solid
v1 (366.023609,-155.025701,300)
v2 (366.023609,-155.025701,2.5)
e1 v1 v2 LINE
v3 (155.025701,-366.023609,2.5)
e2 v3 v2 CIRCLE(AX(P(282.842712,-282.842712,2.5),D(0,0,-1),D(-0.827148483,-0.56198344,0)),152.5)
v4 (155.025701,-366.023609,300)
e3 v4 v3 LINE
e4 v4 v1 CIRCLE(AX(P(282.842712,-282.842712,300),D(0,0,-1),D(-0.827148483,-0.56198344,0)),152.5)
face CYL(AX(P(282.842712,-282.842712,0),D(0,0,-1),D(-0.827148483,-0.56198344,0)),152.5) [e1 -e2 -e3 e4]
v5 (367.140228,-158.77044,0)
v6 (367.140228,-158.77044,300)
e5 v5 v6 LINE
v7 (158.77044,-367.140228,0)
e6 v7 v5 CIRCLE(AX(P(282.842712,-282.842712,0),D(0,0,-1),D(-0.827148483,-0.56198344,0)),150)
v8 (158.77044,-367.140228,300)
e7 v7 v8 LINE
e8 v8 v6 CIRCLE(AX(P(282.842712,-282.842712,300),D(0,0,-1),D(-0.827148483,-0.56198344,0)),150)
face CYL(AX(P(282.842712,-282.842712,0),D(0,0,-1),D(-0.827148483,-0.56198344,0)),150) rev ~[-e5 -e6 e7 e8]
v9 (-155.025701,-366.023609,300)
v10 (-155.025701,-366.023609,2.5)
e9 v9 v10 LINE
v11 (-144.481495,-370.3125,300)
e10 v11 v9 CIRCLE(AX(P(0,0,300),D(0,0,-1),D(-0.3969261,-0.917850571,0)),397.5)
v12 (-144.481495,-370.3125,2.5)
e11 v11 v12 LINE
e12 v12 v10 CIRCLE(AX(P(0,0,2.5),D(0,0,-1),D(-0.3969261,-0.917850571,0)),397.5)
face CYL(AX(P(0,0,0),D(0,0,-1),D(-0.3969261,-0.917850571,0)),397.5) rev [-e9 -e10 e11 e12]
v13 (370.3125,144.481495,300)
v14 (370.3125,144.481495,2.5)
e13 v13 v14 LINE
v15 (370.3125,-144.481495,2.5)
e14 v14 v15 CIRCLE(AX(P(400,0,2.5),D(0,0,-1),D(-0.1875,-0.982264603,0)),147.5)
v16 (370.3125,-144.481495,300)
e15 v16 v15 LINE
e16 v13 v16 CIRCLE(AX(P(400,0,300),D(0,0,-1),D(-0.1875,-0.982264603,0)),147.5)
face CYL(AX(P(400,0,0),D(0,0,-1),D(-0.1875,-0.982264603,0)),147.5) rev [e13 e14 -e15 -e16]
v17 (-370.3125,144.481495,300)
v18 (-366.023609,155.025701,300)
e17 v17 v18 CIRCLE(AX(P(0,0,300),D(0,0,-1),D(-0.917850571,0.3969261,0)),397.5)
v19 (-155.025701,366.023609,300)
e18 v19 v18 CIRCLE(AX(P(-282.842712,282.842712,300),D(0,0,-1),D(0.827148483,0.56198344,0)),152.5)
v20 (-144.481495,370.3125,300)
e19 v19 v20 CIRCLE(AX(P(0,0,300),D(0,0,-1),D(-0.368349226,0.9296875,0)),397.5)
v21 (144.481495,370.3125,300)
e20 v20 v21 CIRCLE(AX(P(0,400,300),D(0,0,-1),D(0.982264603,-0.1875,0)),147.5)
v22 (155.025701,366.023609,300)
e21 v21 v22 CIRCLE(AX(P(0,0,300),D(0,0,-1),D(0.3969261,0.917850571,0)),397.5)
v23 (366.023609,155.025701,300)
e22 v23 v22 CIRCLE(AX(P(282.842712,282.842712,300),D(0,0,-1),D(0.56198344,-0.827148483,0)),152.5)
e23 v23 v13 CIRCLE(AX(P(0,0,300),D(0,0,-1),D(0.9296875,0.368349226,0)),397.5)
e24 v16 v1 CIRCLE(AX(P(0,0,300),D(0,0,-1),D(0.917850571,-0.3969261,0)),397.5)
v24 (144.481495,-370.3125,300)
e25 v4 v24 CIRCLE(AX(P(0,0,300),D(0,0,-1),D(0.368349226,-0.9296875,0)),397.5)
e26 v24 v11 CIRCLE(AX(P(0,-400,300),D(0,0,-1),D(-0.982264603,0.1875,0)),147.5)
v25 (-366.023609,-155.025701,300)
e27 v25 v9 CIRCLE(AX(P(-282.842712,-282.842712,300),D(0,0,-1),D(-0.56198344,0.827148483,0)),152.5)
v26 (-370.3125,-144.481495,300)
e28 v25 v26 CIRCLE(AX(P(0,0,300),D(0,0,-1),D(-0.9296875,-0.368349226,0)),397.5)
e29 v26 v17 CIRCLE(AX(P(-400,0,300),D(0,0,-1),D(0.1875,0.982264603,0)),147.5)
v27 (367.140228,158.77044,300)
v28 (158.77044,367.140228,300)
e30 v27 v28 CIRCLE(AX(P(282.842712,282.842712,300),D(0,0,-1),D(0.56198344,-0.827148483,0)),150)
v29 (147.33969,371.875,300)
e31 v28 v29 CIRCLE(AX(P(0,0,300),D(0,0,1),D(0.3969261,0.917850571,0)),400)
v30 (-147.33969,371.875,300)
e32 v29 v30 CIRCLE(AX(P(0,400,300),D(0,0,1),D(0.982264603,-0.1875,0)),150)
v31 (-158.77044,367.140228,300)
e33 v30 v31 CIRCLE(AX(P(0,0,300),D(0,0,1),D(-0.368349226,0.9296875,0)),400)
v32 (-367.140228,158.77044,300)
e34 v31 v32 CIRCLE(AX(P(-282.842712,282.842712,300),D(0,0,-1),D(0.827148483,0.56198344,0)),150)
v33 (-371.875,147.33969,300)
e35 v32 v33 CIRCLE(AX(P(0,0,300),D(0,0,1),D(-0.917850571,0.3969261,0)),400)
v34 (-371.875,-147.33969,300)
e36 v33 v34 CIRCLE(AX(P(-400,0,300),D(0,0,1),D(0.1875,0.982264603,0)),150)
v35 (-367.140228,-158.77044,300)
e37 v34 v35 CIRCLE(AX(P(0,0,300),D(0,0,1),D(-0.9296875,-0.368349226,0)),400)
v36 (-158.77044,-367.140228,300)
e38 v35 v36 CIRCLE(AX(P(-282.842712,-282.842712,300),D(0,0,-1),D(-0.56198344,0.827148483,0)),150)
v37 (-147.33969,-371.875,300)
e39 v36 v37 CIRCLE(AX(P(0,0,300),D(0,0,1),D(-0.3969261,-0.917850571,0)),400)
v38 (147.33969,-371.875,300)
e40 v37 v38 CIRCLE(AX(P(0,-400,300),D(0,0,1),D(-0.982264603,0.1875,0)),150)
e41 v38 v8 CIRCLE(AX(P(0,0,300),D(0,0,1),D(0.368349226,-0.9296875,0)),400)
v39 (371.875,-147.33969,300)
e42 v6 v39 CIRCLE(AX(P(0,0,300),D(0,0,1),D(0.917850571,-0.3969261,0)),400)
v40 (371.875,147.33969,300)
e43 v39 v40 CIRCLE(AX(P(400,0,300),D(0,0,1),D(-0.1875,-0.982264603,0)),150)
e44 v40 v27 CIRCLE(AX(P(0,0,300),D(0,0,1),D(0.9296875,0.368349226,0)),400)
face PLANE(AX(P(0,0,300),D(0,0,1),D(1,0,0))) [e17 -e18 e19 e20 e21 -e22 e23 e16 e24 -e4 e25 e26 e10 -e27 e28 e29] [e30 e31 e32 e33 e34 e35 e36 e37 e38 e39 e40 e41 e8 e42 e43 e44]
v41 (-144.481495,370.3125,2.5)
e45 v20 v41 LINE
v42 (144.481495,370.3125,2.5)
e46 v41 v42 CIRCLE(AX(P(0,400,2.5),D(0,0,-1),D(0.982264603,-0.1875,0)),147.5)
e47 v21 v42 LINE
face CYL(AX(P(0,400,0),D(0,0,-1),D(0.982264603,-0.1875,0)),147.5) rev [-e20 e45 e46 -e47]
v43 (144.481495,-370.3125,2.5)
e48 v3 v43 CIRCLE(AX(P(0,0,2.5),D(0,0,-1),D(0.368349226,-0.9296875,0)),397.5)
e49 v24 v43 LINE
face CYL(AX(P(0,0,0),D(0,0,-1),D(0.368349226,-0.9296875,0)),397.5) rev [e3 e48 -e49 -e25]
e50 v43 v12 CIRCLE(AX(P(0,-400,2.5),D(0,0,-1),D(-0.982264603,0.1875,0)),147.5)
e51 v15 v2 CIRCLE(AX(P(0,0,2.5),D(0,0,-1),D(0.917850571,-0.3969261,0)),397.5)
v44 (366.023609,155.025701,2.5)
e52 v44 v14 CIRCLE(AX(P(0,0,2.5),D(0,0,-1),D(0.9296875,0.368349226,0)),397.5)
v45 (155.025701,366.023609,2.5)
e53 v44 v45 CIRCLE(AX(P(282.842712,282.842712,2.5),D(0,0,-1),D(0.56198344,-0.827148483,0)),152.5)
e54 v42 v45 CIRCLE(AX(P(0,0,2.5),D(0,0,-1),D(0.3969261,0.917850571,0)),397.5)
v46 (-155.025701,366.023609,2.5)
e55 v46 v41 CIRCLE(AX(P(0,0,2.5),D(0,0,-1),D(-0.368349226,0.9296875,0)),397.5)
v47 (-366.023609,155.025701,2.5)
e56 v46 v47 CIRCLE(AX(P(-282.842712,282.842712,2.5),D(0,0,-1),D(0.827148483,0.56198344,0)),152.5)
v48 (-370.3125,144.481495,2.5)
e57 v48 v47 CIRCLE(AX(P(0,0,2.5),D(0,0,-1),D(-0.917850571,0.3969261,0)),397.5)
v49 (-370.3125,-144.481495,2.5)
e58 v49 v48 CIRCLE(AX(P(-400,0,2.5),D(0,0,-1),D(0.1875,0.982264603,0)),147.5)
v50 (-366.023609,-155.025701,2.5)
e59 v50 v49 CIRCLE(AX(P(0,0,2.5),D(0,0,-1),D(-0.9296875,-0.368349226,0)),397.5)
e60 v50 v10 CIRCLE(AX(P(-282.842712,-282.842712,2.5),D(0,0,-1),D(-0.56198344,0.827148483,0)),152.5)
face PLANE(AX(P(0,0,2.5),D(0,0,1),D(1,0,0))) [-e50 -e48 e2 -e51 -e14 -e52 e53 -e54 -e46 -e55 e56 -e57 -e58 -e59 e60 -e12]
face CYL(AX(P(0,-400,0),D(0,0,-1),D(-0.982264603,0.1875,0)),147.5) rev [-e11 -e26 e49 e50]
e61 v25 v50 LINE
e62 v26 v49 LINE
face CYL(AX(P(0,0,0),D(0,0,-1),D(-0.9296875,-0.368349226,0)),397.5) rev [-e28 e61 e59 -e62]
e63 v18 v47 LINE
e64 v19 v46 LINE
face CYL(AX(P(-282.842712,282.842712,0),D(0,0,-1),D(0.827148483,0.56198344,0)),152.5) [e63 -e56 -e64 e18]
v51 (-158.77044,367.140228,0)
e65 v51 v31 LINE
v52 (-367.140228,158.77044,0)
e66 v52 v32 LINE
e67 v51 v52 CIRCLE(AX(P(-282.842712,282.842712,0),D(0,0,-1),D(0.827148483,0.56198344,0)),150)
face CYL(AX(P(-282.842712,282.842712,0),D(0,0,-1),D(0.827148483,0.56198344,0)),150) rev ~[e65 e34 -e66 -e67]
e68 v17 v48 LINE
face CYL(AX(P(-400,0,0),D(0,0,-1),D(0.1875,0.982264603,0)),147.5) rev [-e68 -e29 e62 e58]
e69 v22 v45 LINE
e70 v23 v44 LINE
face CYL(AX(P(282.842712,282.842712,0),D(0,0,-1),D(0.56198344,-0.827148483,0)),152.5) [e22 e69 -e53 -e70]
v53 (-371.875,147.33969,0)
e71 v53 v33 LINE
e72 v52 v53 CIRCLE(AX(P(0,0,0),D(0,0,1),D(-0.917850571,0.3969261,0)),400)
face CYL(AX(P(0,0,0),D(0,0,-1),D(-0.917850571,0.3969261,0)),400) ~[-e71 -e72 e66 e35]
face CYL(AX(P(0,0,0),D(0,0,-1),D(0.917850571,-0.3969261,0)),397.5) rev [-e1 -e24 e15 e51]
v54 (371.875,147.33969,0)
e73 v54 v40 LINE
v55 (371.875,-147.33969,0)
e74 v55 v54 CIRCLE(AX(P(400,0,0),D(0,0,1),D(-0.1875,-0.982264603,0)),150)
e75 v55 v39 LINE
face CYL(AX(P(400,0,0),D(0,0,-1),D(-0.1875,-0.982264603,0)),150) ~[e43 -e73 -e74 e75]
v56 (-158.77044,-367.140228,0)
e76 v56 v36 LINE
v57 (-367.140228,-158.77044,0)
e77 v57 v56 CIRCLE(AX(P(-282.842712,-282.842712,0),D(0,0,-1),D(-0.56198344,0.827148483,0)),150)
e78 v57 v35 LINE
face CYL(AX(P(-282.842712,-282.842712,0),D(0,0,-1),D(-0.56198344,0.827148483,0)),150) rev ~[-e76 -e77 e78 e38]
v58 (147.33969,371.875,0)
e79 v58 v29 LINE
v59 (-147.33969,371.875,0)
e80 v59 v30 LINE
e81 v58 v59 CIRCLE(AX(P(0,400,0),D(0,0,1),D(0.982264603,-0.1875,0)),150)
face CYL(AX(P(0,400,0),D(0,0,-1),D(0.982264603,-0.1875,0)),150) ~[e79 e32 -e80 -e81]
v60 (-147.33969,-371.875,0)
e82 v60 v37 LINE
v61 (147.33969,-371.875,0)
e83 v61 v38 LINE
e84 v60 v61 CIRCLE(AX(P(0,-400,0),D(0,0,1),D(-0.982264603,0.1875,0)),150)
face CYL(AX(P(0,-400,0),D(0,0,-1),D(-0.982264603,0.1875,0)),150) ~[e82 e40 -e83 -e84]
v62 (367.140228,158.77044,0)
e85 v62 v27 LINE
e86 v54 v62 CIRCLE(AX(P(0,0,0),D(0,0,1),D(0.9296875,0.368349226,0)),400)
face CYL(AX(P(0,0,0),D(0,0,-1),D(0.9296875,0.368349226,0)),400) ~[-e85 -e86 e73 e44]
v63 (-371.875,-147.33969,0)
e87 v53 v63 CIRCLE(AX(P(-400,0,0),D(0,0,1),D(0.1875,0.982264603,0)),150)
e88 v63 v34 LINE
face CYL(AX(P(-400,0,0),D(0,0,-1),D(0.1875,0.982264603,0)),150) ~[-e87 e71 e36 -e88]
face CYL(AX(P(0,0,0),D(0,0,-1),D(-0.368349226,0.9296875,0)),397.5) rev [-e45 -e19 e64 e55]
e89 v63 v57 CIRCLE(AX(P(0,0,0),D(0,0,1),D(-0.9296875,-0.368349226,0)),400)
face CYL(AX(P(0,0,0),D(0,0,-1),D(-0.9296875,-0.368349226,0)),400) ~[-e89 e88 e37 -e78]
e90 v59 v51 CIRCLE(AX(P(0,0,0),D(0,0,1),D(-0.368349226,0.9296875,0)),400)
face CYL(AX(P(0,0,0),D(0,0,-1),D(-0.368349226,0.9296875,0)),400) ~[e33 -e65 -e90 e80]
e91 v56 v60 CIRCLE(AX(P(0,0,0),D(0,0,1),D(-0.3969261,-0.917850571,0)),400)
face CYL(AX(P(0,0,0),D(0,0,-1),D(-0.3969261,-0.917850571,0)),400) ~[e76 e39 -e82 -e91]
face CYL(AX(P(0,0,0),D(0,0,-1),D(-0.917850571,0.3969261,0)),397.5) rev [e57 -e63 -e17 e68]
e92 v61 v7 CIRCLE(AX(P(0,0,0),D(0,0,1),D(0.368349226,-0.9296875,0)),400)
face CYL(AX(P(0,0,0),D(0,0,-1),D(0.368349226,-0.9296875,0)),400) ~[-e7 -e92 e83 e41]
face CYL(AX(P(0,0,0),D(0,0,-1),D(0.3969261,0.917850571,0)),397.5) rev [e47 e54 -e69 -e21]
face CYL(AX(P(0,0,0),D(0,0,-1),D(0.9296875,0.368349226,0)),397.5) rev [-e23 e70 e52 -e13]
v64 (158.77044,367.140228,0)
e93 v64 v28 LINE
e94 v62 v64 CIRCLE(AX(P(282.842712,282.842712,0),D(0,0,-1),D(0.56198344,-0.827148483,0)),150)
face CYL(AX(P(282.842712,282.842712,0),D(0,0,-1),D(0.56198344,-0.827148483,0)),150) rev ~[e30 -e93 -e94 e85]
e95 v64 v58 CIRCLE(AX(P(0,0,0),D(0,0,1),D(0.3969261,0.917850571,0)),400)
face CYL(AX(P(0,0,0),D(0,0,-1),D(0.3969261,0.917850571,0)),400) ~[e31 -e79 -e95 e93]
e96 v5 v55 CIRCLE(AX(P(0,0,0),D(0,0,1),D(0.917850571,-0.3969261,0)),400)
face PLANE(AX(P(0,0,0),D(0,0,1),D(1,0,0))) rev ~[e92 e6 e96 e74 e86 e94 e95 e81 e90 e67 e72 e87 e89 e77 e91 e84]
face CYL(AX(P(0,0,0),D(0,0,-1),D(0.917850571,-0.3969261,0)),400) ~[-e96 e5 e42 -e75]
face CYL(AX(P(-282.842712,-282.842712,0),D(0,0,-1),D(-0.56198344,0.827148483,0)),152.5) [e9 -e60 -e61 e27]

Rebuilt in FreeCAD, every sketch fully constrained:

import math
import FreeCAD as App
import Part
import Sketcher


def faces_at(feature, points):
    """Names of the faces that lie closest to the given points."""
    faces = feature.Shape.Faces
    near = lambda p: min(range(len(faces)), key=lambda i: faces[i].distToShape(Part.Vertex(*p))[0])
    return sorted({f"Face{near(p) + 1}" for p in points})

doc = App.newDocument("Part")
params = doc.addObject("Spreadsheet::Sheet", "Params")
for row, (alias, value) in enumerate([
    ("sketch1_radius", "150 mm"),
    ("sketch1_radius2", "400 mm"),
    ("pad1_length", "300 mm"),
    ("thickness_wall", "2.5 mm"),
], start=1):
    params.set(f"A{row}", alias)
    params.set(f"B{row}", "=" + value)
    params.setAlias(f"B{row}", alias)

body = doc.addObject("PartDesign::Body", "Body")

# Sketch on XY plane
sketch1 = body.newObject("Sketcher::SketchObject", "Sketch")
sketch1.AttachmentSupport = (doc.getObject("XY_Plane"), [""])
sketch1.MapMode = "FlatFace"
sketch1.addGeometry([
    Part.ArcOfCircle(Part.Circle(App.Vector(-283, 283, 0), App.Vector(0, 0, 1), 150), math.radians(-124), math.radians(34)),  # 0
    Part.ArcOfCircle(Part.Circle(App.Vector(0, 0, 0), App.Vector(0, 0, 1), 400), math.radians(156.61), math.radians(158.39)),  # 1
    Part.ArcOfCircle(Part.Circle(App.Vector(-400, 0, 0), App.Vector(0, 0, 1), 150), math.radians(79), math.radians(281)),  # 2
    Part.ArcOfCircle(Part.Circle(App.Vector(0, 0, 0), App.Vector(0, 0, 1), 400), math.radians(-158.39), math.radians(-156.61)),  # 3
    Part.ArcOfCircle(Part.Circle(App.Vector(-283, -283, 0), App.Vector(0, 0, 1), 150), math.radians(-34), math.radians(124)),  # 4
    Part.ArcOfCircle(Part.Circle(App.Vector(0, 0, 0), App.Vector(0, 0, 1), 400), math.radians(-113.39), math.radians(-111.61)),  # 5
    Part.ArcOfCircle(Part.Circle(App.Vector(0, -400, 0), App.Vector(0, 0, 1), 150), math.radians(169), math.radians(371)),  # 6
    Part.ArcOfCircle(Part.Circle(App.Vector(0, 0, 0), App.Vector(0, 0, 1), 400), math.radians(-68.39), math.radians(-66.61)),  # 7
    Part.ArcOfCircle(Part.Circle(App.Vector(283, -283, 0), App.Vector(0, 0, 1), 150), math.radians(56), math.radians(214)),  # 8
    Part.ArcOfCircle(Part.Circle(App.Vector(0, 0, 0), App.Vector(0, 0, 1), 400), math.radians(-23.39), math.radians(-21.61)),  # 9
    Part.ArcOfCircle(Part.Circle(App.Vector(400, 0, 0), App.Vector(0, 0, 1), 150), math.radians(-101), math.radians(101)),  # 10
    Part.ArcOfCircle(Part.Circle(App.Vector(0, 0, 0), App.Vector(0, 0, 1), 400), math.radians(21.61), math.radians(23.39)),  # 11
    Part.ArcOfCircle(Part.Circle(App.Vector(283, 283, 0), App.Vector(0, 0, 1), 150), math.radians(146), math.radians(304)),  # 12
    Part.ArcOfCircle(Part.Circle(App.Vector(0, 0, 0), App.Vector(0, 0, 1), 400), math.radians(66.61), math.radians(68.39)),  # 13
    Part.ArcOfCircle(Part.Circle(App.Vector(0, 400, 0), App.Vector(0, 0, 1), 150), math.radians(-11), math.radians(191)),  # 14
    Part.ArcOfCircle(Part.Circle(App.Vector(0, 0, 0), App.Vector(0, 0, 1), 400), math.radians(111.61), math.radians(113.39)),  # 15
], False)
sketch1.addConstraint([
    Sketcher.Constraint("Coincident", 0, 1, 1, 1),
    Sketcher.Constraint("Coincident", 1, 2, 2, 1),
    Sketcher.Constraint("Coincident", 2, 2, 3, 1),
    Sketcher.Constraint("Coincident", 3, 2, 4, 2),
    Sketcher.Constraint("Coincident", 4, 1, 5, 1),
    Sketcher.Constraint("Coincident", 5, 2, 6, 1),
    Sketcher.Constraint("Coincident", 6, 2, 7, 1),
    Sketcher.Constraint("Coincident", 7, 2, 8, 2),
    Sketcher.Constraint("Coincident", 8, 1, 9, 1),
    Sketcher.Constraint("Coincident", 9, 2, 10, 1),
    Sketcher.Constraint("Coincident", 10, 2, 11, 1),
    Sketcher.Constraint("Coincident", 11, 2, 12, 2),
    Sketcher.Constraint("Coincident", 12, 1, 13, 1),
    Sketcher.Constraint("Coincident", 13, 2, 14, 1),
    Sketcher.Constraint("Coincident", 14, 2, 15, 1),
    Sketcher.Constraint("Coincident", 15, 2, 0, 2),
    Sketcher.Constraint("Coincident", 1, 3, -1, 1),
    Sketcher.Constraint("Coincident", 3, 3, -1, 1),
    Sketcher.Constraint("Coincident", 5, 3, -1, 1),
    Sketcher.Constraint("Coincident", 7, 3, -1, 1),
    Sketcher.Constraint("Coincident", 9, 3, -1, 1),
    Sketcher.Constraint("Coincident", 11, 3, -1, 1),
    Sketcher.Constraint("Coincident", 13, 3, -1, 1),
    Sketcher.Constraint("Coincident", 15, 3, -1, 1),
    Sketcher.Constraint("Equal", 0, 2),
    Sketcher.Constraint("Equal", 1, 3),
    Sketcher.Constraint("Equal", 2, 4),
    Sketcher.Constraint("Equal", 3, 5),
    Sketcher.Constraint("Equal", 4, 6),
    Sketcher.Constraint("Equal", 5, 7),
    Sketcher.Constraint("Equal", 6, 8),
    Sketcher.Constraint("Equal", 7, 9),
    Sketcher.Constraint("Equal", 8, 10),
    Sketcher.Constraint("Equal", 9, 11),
    Sketcher.Constraint("Equal", 10, 12),
    Sketcher.Constraint("Equal", 11, 13),
    Sketcher.Constraint("Equal", 12, 14),
    Sketcher.Constraint("Equal", 13, 15),
    Sketcher.Constraint("Symmetric", 0, 3, 8, 3, -1, 1),
    Sketcher.Constraint("Symmetric", 2, 3, 10, 3, -1, 1),
    Sketcher.Constraint("Symmetric", 4, 3, 12, 3, -1, 1),
    Sketcher.Constraint("Symmetric", 6, 3, 14, 3, -1, 1),
    Sketcher.Constraint("Symmetric", 4, 3, 8, 3, -2),
    Sketcher.Constraint("PointOnObject", 2, 3, -1),
    Sketcher.Constraint("PointOnObject", 6, 3, -2),
    Sketcher.Constraint("Radius", 0, 150.0),
    Sketcher.Constraint("Radius", 1, 400.0),
    Sketcher.Constraint("DistanceX", 2, 3, -1, 1, 400.0),
    Sketcher.Constraint("DistanceY", 6, 3, -1, 1, 400.0),
    Sketcher.Constraint("DistanceY", -1, 1, 0, 1, 158.77044),
    Sketcher.Constraint("DistanceX", 4, 1, -1, 1, 158.77044),
])
sketch1.setExpression("Constraints[45]", "Params.sketch1_radius")
sketch1.setExpression("Constraints[46]", "Params.sketch1_radius2")
pad1 = body.newObject("PartDesign::Pad", "Pad")
pad1.Profile = sketch1
pad1.setExpression("Length", "Params.pad1_length")
doc.recompute()

thickness = body.newObject("PartDesign::Thickness", "Thickness")
thickness.Base = (pad1, faces_at(pad1, [(0, 0, 300)]))
thickness.setExpression("Value", "Params.thickness_wall")
thickness.Reversed = True
thickness.Join = "Intersection"

doc.recompute()
